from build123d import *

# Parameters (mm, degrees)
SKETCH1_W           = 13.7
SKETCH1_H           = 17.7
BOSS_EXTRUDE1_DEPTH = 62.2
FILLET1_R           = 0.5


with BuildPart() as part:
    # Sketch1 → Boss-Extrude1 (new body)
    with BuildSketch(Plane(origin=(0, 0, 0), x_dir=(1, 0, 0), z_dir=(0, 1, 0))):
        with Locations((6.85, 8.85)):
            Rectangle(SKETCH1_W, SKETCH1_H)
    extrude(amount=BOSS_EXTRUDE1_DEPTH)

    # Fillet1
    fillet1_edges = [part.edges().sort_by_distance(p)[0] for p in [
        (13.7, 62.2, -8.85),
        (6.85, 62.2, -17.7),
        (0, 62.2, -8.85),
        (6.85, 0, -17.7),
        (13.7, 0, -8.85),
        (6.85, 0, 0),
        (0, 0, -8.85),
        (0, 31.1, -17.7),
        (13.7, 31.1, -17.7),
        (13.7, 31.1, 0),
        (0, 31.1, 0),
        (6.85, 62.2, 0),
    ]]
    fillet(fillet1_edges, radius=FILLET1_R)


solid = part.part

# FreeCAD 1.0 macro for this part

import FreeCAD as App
import Part
import Sketcher
from FreeCAD import Vector


def add_polygon(sketch, points):
    """Adds a closed chain of lines whose ends are joined by coincident constraints."""
    first, n = sketch.GeometryCount, len(points)
    for a, b in zip(points, points[1:] + points[:1]):
        sketch.addGeometry(Part.LineSegment(App.Vector(*a, 0), App.Vector(*b, 0)), False)
    for i in range(n):
        sketch.addConstraint(Sketcher.Constraint("Coincident", first + i, 2, first + (i + 1) % n, 1))

doc = App.newDocument("Part")
body = doc.addObject("PartDesign::Body", "Body")

# Sketch on XZ plane
sketch1 = body.newObject("Sketcher::SketchObject", "Sketch")
sketch1.AttachmentSupport = (doc.getObject("XZ_Plane"), [""])
sketch1.MapMode = "FlatFace"
add_polygon(sketch1, [(0, -18), (0, 0), (14, 0), (14, -18)])  # lines 0-3
sketch1.addConstraint([
    Sketcher.Constraint("Vertical", 0),
    Sketcher.Constraint("Horizontal", 1),
    Sketcher.Constraint("Vertical", 2),
    Sketcher.Constraint("Horizontal", 3),
    Sketcher.Constraint("Coincident", 0, 2, -1, 1),
    Sketcher.Constraint("DistanceX", 1, 1, 1, 2, 13.7),
    Sketcher.Constraint("DistanceY", 0, 1, 0, 2, 17.7),
])
pad1 = body.newObject("PartDesign::Pad", "Pad")
pad1.Profile = sketch1
pad1.Length = 62.2
pad1.Reversed = True
doc.recompute()

fillet = body.newObject("PartDesign::Fillet", "Fillet")
fillet.Base = (pad1, ["Edge1"])
fillet.UseAllEdges = True
fillet.Radius = 0.5

doc.recompute()
